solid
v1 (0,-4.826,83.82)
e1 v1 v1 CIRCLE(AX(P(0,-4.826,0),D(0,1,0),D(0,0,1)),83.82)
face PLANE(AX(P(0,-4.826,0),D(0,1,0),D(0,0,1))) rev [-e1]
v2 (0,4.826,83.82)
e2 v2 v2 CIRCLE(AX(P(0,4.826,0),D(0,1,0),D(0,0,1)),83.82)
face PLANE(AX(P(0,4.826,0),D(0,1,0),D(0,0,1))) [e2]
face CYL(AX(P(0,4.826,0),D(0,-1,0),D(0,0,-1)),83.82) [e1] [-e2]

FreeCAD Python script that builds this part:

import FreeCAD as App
import Part
import Sketcher
Q = App.Units.Quantity

doc = App.newDocument("Part")
params = doc.addObject("Spreadsheet::Sheet", "Params")
for row, (alias, value) in enumerate([
    ("sketch1_diameter", "6.6 in"),
    ("pad1_length", "0.38 in"),
], start=1):
    params.set(f"A{row}", alias)
    params.set(f"B{row}", "=" + value)
    params.setAlias(f"B{row}", alias)

body = doc.addObject("PartDesign::Body", "Body")

sketch1 = doc.addObject("Sketcher::SketchObject", "Sketch")
body.addObject(sketch1)
sketch1.AttachmentSupport = (doc.XZ_Plane, [""])
sketch1.MapMode = "FlatFace"
sketch1.addGeometry(Part.Circle(App.Vector(0, 0, 0), App.Vector(0, 0, 1), 84), False)
sketch1.addConstraint(Sketcher.Constraint("Coincident", 0, 3, -1, 1))
sketch1.addConstraint(Sketcher.Constraint("Diameter", 0, Q("6.6 in")))
sketch1.setExpression("Constraints[1]", "Params.sketch1_diameter")
pad1 = doc.addObject("PartDesign::Pad", "Pad")
body.addObject(pad1)
pad1.Profile = sketch1
pad1.setExpression("Length", "Params.pad1_length")
pad1.Midplane = True

doc.recompute()
